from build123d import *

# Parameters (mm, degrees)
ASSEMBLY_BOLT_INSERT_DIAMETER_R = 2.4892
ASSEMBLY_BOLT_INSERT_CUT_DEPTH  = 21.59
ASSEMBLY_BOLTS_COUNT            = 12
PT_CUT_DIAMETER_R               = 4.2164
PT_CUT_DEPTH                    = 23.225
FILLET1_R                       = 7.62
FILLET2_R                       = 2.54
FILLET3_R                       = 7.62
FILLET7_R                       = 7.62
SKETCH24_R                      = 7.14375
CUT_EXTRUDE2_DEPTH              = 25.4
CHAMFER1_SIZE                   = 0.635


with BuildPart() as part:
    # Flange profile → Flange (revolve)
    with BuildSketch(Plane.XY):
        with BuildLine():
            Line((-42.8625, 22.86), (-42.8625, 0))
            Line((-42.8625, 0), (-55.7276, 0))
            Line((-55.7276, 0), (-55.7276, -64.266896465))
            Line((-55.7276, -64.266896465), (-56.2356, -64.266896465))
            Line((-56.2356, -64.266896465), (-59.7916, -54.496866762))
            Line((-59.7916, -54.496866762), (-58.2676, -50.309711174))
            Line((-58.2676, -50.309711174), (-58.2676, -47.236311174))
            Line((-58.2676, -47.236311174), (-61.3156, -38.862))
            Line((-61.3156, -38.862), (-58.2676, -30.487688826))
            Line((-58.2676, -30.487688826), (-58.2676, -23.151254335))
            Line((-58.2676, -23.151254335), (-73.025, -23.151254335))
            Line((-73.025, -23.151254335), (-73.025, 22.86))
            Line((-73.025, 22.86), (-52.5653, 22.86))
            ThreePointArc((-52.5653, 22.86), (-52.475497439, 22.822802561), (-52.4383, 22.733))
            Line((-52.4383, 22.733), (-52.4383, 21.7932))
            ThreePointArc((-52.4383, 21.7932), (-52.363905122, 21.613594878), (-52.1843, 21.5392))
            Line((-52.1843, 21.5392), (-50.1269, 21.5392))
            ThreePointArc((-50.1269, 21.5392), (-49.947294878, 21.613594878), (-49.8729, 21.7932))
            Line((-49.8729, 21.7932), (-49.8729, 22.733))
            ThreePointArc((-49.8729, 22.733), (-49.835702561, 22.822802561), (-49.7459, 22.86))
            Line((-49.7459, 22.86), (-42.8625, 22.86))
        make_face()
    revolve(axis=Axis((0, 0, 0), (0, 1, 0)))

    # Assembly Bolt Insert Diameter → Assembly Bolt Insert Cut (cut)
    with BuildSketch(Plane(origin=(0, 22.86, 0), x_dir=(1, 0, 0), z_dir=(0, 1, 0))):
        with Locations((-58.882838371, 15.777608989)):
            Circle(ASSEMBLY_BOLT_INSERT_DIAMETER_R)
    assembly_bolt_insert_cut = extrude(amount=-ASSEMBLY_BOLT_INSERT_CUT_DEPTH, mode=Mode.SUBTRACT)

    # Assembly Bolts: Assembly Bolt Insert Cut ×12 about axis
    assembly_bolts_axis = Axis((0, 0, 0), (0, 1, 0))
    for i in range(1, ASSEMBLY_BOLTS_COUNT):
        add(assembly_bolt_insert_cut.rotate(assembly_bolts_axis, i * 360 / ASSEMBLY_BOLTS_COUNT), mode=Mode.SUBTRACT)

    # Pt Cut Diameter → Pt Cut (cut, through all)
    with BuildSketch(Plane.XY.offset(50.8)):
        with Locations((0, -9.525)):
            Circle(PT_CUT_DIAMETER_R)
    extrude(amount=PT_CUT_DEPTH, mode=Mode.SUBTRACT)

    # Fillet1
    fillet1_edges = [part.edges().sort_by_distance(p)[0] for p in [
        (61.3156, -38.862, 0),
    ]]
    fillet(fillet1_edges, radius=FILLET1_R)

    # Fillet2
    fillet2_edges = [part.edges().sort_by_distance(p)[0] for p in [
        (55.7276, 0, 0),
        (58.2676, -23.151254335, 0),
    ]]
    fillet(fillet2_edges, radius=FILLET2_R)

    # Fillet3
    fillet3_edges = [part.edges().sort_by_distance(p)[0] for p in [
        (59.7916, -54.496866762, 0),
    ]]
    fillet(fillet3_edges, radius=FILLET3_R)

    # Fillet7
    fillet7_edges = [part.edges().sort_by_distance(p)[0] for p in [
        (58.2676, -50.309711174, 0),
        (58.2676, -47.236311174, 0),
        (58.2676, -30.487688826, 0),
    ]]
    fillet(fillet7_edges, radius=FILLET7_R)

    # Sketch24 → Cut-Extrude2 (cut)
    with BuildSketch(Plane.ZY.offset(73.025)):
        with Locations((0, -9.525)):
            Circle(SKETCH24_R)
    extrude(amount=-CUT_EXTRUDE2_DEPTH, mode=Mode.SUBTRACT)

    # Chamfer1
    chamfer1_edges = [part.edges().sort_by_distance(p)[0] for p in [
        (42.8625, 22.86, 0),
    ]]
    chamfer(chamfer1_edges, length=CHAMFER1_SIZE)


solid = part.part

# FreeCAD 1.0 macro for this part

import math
import FreeCAD as App
import Part
import Sketcher

V = App.Vector
Q = App.Units.Quantity


def edges_at(feature, points):
    """Names of the edges that pass closest to the given points."""
    edges = feature.Shape.Edges
    near = lambda p: min(range(len(edges)), key=lambda i: edges[i].distToShape(Part.Vertex(*p))[0])
    return sorted({f"Edge{near(p) + 1}" for p in points})

doc = App.newDocument("Part")
body = doc.addObject("PartDesign::Body", "Body")

sketch1 = doc.addObject("Sketcher::SketchObject", "Sketch")
body.addObject(sketch1)
sketch1.AttachmentSupport = (doc.XY_Plane, [""])
sketch1.MapMode = "FlatFace"
sketch1.addGeometry([
    Part.LineSegment(V(-42.8625, 0, 0), V(-42.8625, 22.86, 0)),
    Part.LineSegment(V(-42.8625, 22.86, 0), V(-49.7459, 22.86, 0)),
    Part.ArcOfCircle(Part.Circle(V(-49.7459, 22.733, 0), V(0, 0, 1), 0.127), math.radians(90), math.radians(180)),
    Part.LineSegment(V(-49.8729, 22.733, 0), V(-49.8729, 21.7932, 0)),
    Part.ArcOfCircle(Part.Circle(V(-50.1269, 21.7932, 0), V(0, 0, 1), 0.254), math.radians(-90), math.radians(0)),
    Part.LineSegment(V(-50.1269, 21.5392, 0), V(-52.1843, 21.5392, 0)),
    Part.ArcOfCircle(Part.Circle(V(-52.1843, 21.7932, 0), V(0, 0, 1), 0.254), math.radians(-180), math.radians(-90)),
    Part.LineSegment(V(-52.4383, 21.7932, 0), V(-52.4383, 22.733, 0)),
    Part.ArcOfCircle(Part.Circle(V(-52.5653, 22.733, 0), V(0, 0, 1), 0.127), math.radians(0), math.radians(90)),
    Part.LineSegment(V(-52.5653, 22.86, 0), V(-73.025, 22.86, 0)),
    Part.LineSegment(V(-73.025, 22.86, 0), V(-73.025, -23.151254, 0)),
    Part.LineSegment(V(-73.025, -23.151254, 0), V(-58.2676, -23.151254, 0)),
    Part.LineSegment(V(-58.2676, -23.151254, 0), V(-58.2676, -30.487689, 0)),
    Part.LineSegment(V(-58.2676, -30.487689, 0), V(-61.3156, -38.862, 0)),
    Part.LineSegment(V(-61.3156, -38.862, 0), V(-58.2676, -47.236311, 0)),
    Part.LineSegment(V(-58.2676, -47.236311, 0), V(-58.2676, -50.309711, 0)),
    Part.LineSegment(V(-58.2676, -50.309711, 0), V(-59.7916, -54.496867, 0)),
    Part.LineSegment(V(-59.7916, -54.496867, 0), V(-56.2356, -64.266896, 0)),
    Part.LineSegment(V(-56.2356, -64.266896, 0), V(-55.7276, -64.266896, 0)),
    Part.LineSegment(V(-55.7276, -64.266896, 0), V(-55.7276, 0, 0)),
    Part.LineSegment(V(-55.7276, 0, 0), V(-42.8625, 0, 0)),
], False)
sketch1.addConstraint([
    Sketcher.Constraint("Coincident", 0, 2, 1, 1),
    Sketcher.Constraint("Tangent", 1, 2, 2, 1),
    Sketcher.Constraint("Tangent", 2, 2, 3, 1),
    Sketcher.Constraint("Tangent", 3, 2, 4, 2),
    Sketcher.Constraint("Tangent", 4, 1, 5, 1),
    Sketcher.Constraint("Tangent", 5, 2, 6, 2),
    Sketcher.Constraint("Tangent", 6, 1, 7, 1),
    Sketcher.Constraint("Tangent", 7, 2, 8, 1),
    Sketcher.Constraint("Tangent", 8, 2, 9, 1),
    Sketcher.Constraint("Coincident", 9, 2, 10, 1),
    Sketcher.Constraint("Coincident", 10, 2, 11, 1),
    Sketcher.Constraint("Coincident", 11, 2, 12, 1),
    Sketcher.Constraint("Coincident", 12, 2, 13, 1),
    Sketcher.Constraint("Coincident", 13, 2, 14, 1),
    Sketcher.Constraint("Coincident", 14, 2, 15, 1),
    Sketcher.Constraint("Coincident", 15, 2, 16, 1),
    Sketcher.Constraint("Coincident", 16, 2, 17, 1),
    Sketcher.Constraint("Coincident", 17, 2, 18, 1),
    Sketcher.Constraint("Coincident", 18, 2, 19, 1),
    Sketcher.Constraint("Coincident", 19, 2, 20, 1),
    Sketcher.Constraint("Coincident", 20, 2, 0, 1),
    Sketcher.Constraint("Vertical", 0),
    Sketcher.Constraint("Horizontal", 1),
    Sketcher.Constraint("Vertical", 3),
    Sketcher.Constraint("Horizontal", 5),
    Sketcher.Constraint("Vertical", 7),
    Sketcher.Constraint("Horizontal", 9),
    Sketcher.Constraint("Vertical", 10),
    Sketcher.Constraint("Horizontal", 11),
    Sketcher.Constraint("Vertical", 12),
    Sketcher.Constraint("Vertical", 15),
    Sketcher.Constraint("Horizontal", 18),
    Sketcher.Constraint("Vertical", 19),
    Sketcher.Constraint("Horizontal", 20),
    Sketcher.Constraint("Equal", 4, 6),
    Sketcher.Constraint("Equal", 2, 8),
    Sketcher.Constraint("PointOnObject", 19, 2, -1),
    Sketcher.Constraint("Parallel", 13, 16),
    Sketcher.Constraint("Parallel", 14, 17),
    Sketcher.Constraint("Horizontal", 2, 3, 8, 3),
    Sketcher.Constraint("Vertical", 12, 2, 14, 2),
    Sketcher.Constraint("Equal", 13, 14),
    Sketcher.Constraint("Radius", 4, Q("0.01 in")),
    Sketcher.Constraint("DistanceY", 0, 1, 0, 2, Q("0.9 in")),
    Sketcher.Constraint("Angle", 13, Q("-110 deg")),
    Sketcher.Constraint("Radius", 2, Q("0.005 in")),
    Sketcher.Constraint("DistanceX", 18, 1, 18, 2, Q("0.02 in")),
    Sketcher.Constraint("DistanceX", 13, 2, 17, 2, Q("0.2 in")),
    Sketcher.Constraint("DistanceX", 15, 2, 18, 2, Q("0.1 in")),
    Sketcher.Constraint("DistanceX", 1, 2, 1, 1, Q("0.271 in")),
    Sketcher.Constraint("DistanceX", 5, 2, 5, 1, Q("0.081 in")),
    Sketcher.Constraint("DistanceX", 11, 1, 11, 2, Q("0.581 in")),
    Sketcher.Constraint("DistanceY", 3, 2, 3, 1, Q("0.037 in")),
    Sketcher.Constraint("DistanceY", 15, 2, 15, 1, Q("0.121 in")),
    Sketcher.Constraint("DistanceY", 13, 2, -1, 1, Q("1.53 in")),
    Sketcher.Constraint("DistanceX", 16, 2, 15, 2, Q("0.06 in")),
    Sketcher.Constraint("DistanceX", 9, 2, 9, 1, Q("0.8055 in")),
    Sketcher.Constraint("DistanceX", 0, 2, -1, 1, Q("1.6875 in")),
    Sketcher.Constraint("DistanceY", 10, 2, 10, 1, Q("46.011254 mm")),
])
revolution = doc.addObject("PartDesign::Revolution", "Revolution")
body.addObject(revolution)
revolution.Profile = sketch1
revolution.ReferenceAxis = (sketch1, ["V_Axis"])
revolution.Angle = 360

sketch2 = doc.addObject("Sketcher::SketchObject", "Sketch001")
body.addObject(sketch2)
sketch2.AttachmentSupport = (doc.XZ_Plane, [""])
sketch2.MapMode = "FlatFace"
sketch2.AttachmentOffset = App.Placement(V(0, 0, -0.9 * 25.4), App.Rotation())
sketch2.addGeometry(Part.Circle(V(-58.882838, -15.777609, 0), V(0, 0, 1), 2.4892), False)
sketch2.addConstraint([
    Sketcher.Constraint("Diameter", 0, Q("0.196 in")),
    Sketcher.Constraint("DistanceX", 0, 3, -1, 1, Q("58.882838 mm")),
    Sketcher.Constraint("DistanceY", 0, 3, -1, 1, Q("15.777609 mm")),
])
pocket1 = doc.addObject("PartDesign::Pocket", "Pocket")
body.addObject(pocket1)
pocket1.Profile = sketch2
pocket1.Length = Q("0.85 in")
pocket1.Reversed = True
doc.recompute()

polarpattern = doc.addObject("PartDesign::PolarPattern", "PolarPattern")
body.addObject(polarpattern)
polarpattern.Originals = [pocket1]
polarpattern.Axis = (doc.Y_Axis, [""])
polarpattern.Angle = 360
polarpattern.Occurrences = 12
body.Tip = polarpattern

sketch3 = doc.addObject("Sketcher::SketchObject", "Sketch002")
body.addObject(sketch3)
sketch3.AttachmentSupport = (doc.XY_Plane, [""])
sketch3.MapMode = "FlatFace"
sketch3.AttachmentOffset = App.Placement(V(0, 0, 2 * 25.4), App.Rotation())
sketch3.addGeometry(Part.Circle(V(0, -9.525, 0), V(0, 0, 1), 4.2164), False)
sketch3.addConstraint([
    Sketcher.Constraint("PointOnObject", 0, 3, -2),
    Sketcher.Constraint("Diameter", 0, Q("0.332 in")),
    Sketcher.Constraint("DistanceY", 0, 3, -1, 1, Q("0.375 in")),
])
pocket2 = doc.addObject("PartDesign::Pocket", "Pocket001")
body.addObject(pocket2)
pocket2.Profile = sketch3
pocket2.Type = "ThroughAll"
pocket2.Reversed = True
doc.recompute()

fillet = doc.addObject("PartDesign::Fillet", "Fillet")
body.addObject(fillet)
fillet.Base = (pocket2, edges_at(pocket2, [(61.316, -38.862, 0)]))
fillet.Radius = Q("0.3 in")
doc.recompute()

fillet2 = doc.addObject("PartDesign::Fillet", "Fillet001")
body.addObject(fillet2)
fillet2.Base = (fillet, edges_at(fillet, [(55.728, 0, 0), (58.268, -23.151, 0)]))
fillet2.Radius = Q("0.1 in")
doc.recompute()

fillet3 = doc.addObject("PartDesign::Fillet", "Fillet002")
body.addObject(fillet3)
fillet3.Base = (fillet2, edges_at(fillet2, [(59.792, -54.497, 0)]))
fillet3.Radius = Q("0.3 in")
doc.recompute()

fillet4 = doc.addObject("PartDesign::Fillet", "Fillet003")
body.addObject(fillet4)
fillet4.Base = (fillet3, edges_at(fillet3, [(58.268, -50.31, 0), (58.268, -47.236, 0), (58.268, -30.488, 0)]))
fillet4.Radius = Q("0.3 in")

sketch4 = doc.addObject("Sketcher::SketchObject", "Sketch003")
body.addObject(sketch4)
sketch4.AttachmentSupport = (doc.YZ_Plane, [""])
sketch4.MapMode = "FlatFace"
sketch4.AttachmentOffset = App.Placement(V(0, 0, -2.875 * 25.4), App.Rotation())
sketch4.addGeometry(Part.Circle(V(-9.525, 0, 0), V(0, 0, 1), 7.14375), False)
sketch4.addConstraint([
    Sketcher.Constraint("PointOnObject", 0, 3, -1),
    Sketcher.Constraint("Diameter", 0, Q("0.5625 in")),
    Sketcher.Constraint("DistanceX", 0, 3, -1, 1, Q("0.375 in")),
])
pocket3 = doc.addObject("PartDesign::Pocket", "Pocket002")
body.addObject(pocket3)
pocket3.Profile = sketch4
pocket3.Length = Q("1 in")
pocket3.Reversed = True
doc.recompute()

chamfer = doc.addObject("PartDesign::Chamfer", "Chamfer")
body.addObject(chamfer)
chamfer.Base = (pocket3, edges_at(pocket3, [(42.862, 22.86, 0)]))
chamfer.Size = Q("0.025 in")

doc.recompute()
